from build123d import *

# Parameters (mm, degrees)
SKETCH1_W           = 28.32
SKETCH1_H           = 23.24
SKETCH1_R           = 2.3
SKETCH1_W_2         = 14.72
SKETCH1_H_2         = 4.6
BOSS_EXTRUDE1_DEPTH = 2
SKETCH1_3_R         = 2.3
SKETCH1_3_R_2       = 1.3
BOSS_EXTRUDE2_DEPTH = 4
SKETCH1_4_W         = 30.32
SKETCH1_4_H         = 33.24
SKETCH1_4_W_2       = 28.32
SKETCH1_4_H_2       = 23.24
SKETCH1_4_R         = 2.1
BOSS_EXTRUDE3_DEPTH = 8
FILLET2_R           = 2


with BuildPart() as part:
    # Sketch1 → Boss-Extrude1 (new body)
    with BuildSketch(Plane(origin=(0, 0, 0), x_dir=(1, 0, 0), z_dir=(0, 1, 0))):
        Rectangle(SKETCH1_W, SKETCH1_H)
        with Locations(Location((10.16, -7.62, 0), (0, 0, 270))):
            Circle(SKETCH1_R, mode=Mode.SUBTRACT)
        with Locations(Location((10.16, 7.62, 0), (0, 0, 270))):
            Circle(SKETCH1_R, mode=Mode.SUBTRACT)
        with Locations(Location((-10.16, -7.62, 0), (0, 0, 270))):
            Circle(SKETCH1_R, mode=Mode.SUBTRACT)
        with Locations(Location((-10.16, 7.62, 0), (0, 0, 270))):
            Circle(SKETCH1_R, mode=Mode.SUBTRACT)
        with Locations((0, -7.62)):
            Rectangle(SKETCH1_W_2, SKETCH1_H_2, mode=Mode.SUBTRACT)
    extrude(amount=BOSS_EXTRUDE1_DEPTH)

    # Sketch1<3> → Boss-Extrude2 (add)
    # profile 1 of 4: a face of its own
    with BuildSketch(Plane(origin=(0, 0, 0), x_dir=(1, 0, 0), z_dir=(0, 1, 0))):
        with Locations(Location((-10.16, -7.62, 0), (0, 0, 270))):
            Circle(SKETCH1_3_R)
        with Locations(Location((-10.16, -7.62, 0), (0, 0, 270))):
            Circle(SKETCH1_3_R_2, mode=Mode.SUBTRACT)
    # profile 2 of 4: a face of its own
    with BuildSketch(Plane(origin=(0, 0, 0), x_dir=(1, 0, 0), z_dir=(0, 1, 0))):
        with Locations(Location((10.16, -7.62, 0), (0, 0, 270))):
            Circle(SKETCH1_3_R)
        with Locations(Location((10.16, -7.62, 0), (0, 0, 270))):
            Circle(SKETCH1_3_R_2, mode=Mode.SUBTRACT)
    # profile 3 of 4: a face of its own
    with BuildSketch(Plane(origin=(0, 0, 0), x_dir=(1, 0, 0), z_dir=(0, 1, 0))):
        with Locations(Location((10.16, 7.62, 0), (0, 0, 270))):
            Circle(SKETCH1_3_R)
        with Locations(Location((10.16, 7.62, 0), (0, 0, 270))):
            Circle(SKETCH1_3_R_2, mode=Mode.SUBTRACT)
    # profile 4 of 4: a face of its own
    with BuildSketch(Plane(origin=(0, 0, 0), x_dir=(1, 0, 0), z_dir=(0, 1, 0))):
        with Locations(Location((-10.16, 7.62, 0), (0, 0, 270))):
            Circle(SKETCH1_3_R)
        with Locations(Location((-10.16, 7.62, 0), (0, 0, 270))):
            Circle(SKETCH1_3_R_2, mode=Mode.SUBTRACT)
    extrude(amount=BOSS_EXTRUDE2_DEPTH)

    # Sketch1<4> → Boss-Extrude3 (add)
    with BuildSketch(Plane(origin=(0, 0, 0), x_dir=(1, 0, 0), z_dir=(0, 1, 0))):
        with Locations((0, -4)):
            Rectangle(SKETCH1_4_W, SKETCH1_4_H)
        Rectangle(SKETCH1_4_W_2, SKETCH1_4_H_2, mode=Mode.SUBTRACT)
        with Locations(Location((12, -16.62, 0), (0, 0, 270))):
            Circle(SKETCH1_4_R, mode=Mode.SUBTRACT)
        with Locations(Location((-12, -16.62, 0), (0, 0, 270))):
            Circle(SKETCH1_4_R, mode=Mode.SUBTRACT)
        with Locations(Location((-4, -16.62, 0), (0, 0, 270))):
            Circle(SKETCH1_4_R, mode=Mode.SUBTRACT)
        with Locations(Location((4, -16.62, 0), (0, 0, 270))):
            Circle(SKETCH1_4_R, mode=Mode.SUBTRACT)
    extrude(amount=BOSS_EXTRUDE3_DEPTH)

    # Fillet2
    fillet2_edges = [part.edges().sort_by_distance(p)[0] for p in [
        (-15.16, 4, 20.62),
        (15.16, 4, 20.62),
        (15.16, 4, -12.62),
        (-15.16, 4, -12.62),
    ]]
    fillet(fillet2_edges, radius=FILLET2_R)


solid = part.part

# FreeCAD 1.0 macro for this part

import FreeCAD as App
import Part
import Sketcher
from FreeCAD import Vector


def edges_at(feature, points):
    """Names of the edges that pass closest to the given points."""
    edges = feature.Shape.Edges
    near = lambda p: min(range(len(edges)), key=lambda i: edges[i].distToShape(Part.Vertex(*p))[0])
    return sorted({f"Edge{near(p) + 1}" for p in points})


def add_polygon(sketch, points):
    """Adds a closed chain of lines whose ends are joined by coincident constraints."""
    first, n = sketch.GeometryCount, len(points)
    for a, b in zip(points, points[1:] + points[:1]):
        sketch.addGeometry(Part.LineSegment(App.Vector(*a, 0), App.Vector(*b, 0)), False)
    for i in range(n):
        sketch.addConstraint(Sketcher.Constraint("Coincident", first + i, 2, first + (i + 1) % n, 1))

doc = App.newDocument("Part")
body = doc.addObject("PartDesign::Body", "Body")

# Sketch on XZ plane
sketch1 = body.newObject("Sketcher::SketchObject", "Sketch")
sketch1.AttachmentSupport = (doc.getObject("XZ_Plane"), [""])
sketch1.MapMode = "FlatFace"
add_polygon(sketch1, [(-14.2, -11.6), (-14.2, 11.6), (14.2, 11.6), (14.2, -11.6)])  # lines 0-3
sketch1.addGeometry(Part.Circle(Vector(-10.2, 7.6, 0), Vector(0, 0, 1), 2.3), False)  # 4
add_polygon(sketch1, [(7.4, 9.9), (-7.4, 9.9), (-7.4, 5.3), (7.4, 5.3)])  # lines 5-8
sketch1.addGeometry(Part.Circle(Vector(10.2, 7.6, 0), Vector(0, 0, 1), 2.3), False)  # 9
sketch1.addGeometry(Part.Circle(Vector(-10.2, -7.6, 0), Vector(0, 0, 1), 2.3), False)  # 10
sketch1.addGeometry(Part.Circle(Vector(10.2, -7.6, 0), Vector(0, 0, 1), 2.3), False)  # 11
sketch1.addConstraint([
    Sketcher.Constraint("Vertical", 0),
    Sketcher.Constraint("Horizontal", 1),
    Sketcher.Constraint("Vertical", 2),
    Sketcher.Constraint("Horizontal", 3),
    Sketcher.Constraint("Horizontal", 5),
    Sketcher.Constraint("Vertical", 6),
    Sketcher.Constraint("Horizontal", 7),
    Sketcher.Constraint("Vertical", 8),
    Sketcher.Constraint("Equal", 4, 9),
    Sketcher.Constraint("Equal", 9, 10),
    Sketcher.Constraint("Equal", 10, 11),
    Sketcher.Constraint("Symmetric", 9, 3, 10, 3, -1, 1),
    Sketcher.Constraint("Symmetric", 4, 3, 11, 3, -1, 1),
    Sketcher.Constraint("Symmetric", 0, 2, 2, 2, -1, 1),
    Sketcher.Constraint("Symmetric", 4, 3, 9, 3, -2),
    Sketcher.Constraint("Diameter", 4, 4.6),
    Sketcher.Constraint("DistanceY", 6, 2, 6, 1, 4.6),
    Sketcher.Constraint("DistanceX", 0, 2, 4, 3, 4.0),
    Sketcher.Constraint("DistanceY", 4, 3, 0, 2, 4.0),
    Sketcher.Constraint("DistanceX", 1, 1, 1, 2, 28.32),
    Sketcher.Constraint("DistanceX", 5, 2, 5, 1, 14.72),
    Sketcher.Constraint("DistanceY", 0, 1, 0, 2, 23.24),
    Sketcher.Constraint("DistanceX", 4, 3, 5, 2, 2.8),
    Sketcher.Constraint("DistanceY", 4, 3, 5, 2, 2.3),
])
pad1 = body.newObject("PartDesign::Pad", "Pad")
pad1.Profile = sketch1
pad1.Length = 2
pad1.Reversed = True

# Sketch on XZ plane
sketch2 = body.newObject("Sketcher::SketchObject", "Sketch001")
sketch2.AttachmentSupport = (doc.getObject("XZ_Plane"), [""])
sketch2.MapMode = "FlatFace"
sketch2.addGeometry([
    Part.Circle(Vector(-10.2, 7.6, 0), Vector(0, 0, 1), 2.3),  # 0
    Part.Circle(Vector(-10.2, 7.6, 0), Vector(0, 0, 1), 1.3),  # 1
    Part.Circle(Vector(10.2, 7.6, 0), Vector(0, 0, 1), 2.3),  # 2
    Part.Circle(Vector(10.2, 7.6, 0), Vector(0, 0, 1), 1.3),  # 3
    Part.Circle(Vector(10.2, -7.6, 0), Vector(0, 0, 1), 2.3),  # 4
    Part.Circle(Vector(10.2, -7.6, 0), Vector(0, 0, 1), 1.3),  # 5
    Part.Circle(Vector(-10.2, -7.6, 0), Vector(0, 0, 1), 2.3),  # 6
    Part.Circle(Vector(-10.2, -7.6, 0), Vector(0, 0, 1), 1.3),  # 7
], False)
sketch2.addConstraint([
    Sketcher.Constraint("Coincident", 1, 3, 0, 3),
    Sketcher.Constraint("Coincident", 3, 3, 2, 3),
    Sketcher.Constraint("Coincident", 5, 3, 4, 3),
    Sketcher.Constraint("Coincident", 7, 3, 6, 3),
    Sketcher.Constraint("Equal", 0, 2),
    Sketcher.Constraint("Equal", 1, 3),
    Sketcher.Constraint("Equal", 2, 4),
    Sketcher.Constraint("Equal", 3, 5),
    Sketcher.Constraint("Equal", 4, 6),
    Sketcher.Constraint("Equal", 5, 7),
    Sketcher.Constraint("Symmetric", 0, 3, 4, 3, -1, 1),
    Sketcher.Constraint("Symmetric", 2, 3, 6, 3, -1, 1),
    Sketcher.Constraint("Symmetric", 0, 3, 2, 3, -2),
    Sketcher.Constraint("Diameter", 0, 4.6),
    Sketcher.Constraint("Diameter", 1, 2.6),
    Sketcher.Constraint("DistanceX", 0, 3, -1, 1, 10.16),
    Sketcher.Constraint("DistanceY", -1, 1, 0, 3, 7.62),
])
pad2 = body.newObject("PartDesign::Pad", "Pad001")
pad2.Profile = sketch2
pad2.Length = 4
pad2.Reversed = True

# Sketch on XZ plane
sketch3 = body.newObject("Sketcher::SketchObject", "Sketch002")
sketch3.AttachmentSupport = (doc.getObject("XZ_Plane"), [""])
sketch3.MapMode = "FlatFace"
add_polygon(sketch3, [(-15.2, -12.6), (-15.2, 20.6), (15.2, 20.6), (15.2, -12.6)])  # lines 0-3
sketch3.addGeometry(Part.Circle(Vector(-12, 16.6, 0), Vector(0, 0, 1), 2.1), False)  # 4
sketch3.addGeometry(Part.Circle(Vector(-4, 16.6, 0), Vector(0, 0, 1), 2.1), False)  # 5
sketch3.addGeometry(Part.Circle(Vector(4, 16.6, 0), Vector(0, 0, 1), 2.1), False)  # 6
sketch3.addGeometry(Part.Circle(Vector(12, 16.6, 0), Vector(0, 0, 1), 2.1), False)  # 7
add_polygon(sketch3, [(14.2, 11.6), (-14.2, 11.6), (-14.2, -11.6), (14.2, -11.6)])  # lines 8-11
sketch3.addConstraint([
    Sketcher.Constraint("Vertical", 0),
    Sketcher.Constraint("Horizontal", 1),
    Sketcher.Constraint("Vertical", 2),
    Sketcher.Constraint("Horizontal", 3),
    Sketcher.Constraint("Horizontal", 8),
    Sketcher.Constraint("Vertical", 9),
    Sketcher.Constraint("Horizontal", 10),
    Sketcher.Constraint("Vertical", 11),
    Sketcher.Constraint("Equal", 4, 5),
    Sketcher.Constraint("Equal", 5, 6),
    Sketcher.Constraint("Equal", 6, 7),
    Sketcher.Constraint("Symmetric", 8, 2, 10, 2, -1, 1),
    Sketcher.Constraint("Symmetric", 5, 3, 6, 3, -2),
    Sketcher.Constraint("Symmetric", 4, 3, 7, 3, -2),
    Sketcher.Constraint("Horizontal", 4, 3, 5, 3),
    Sketcher.Constraint("Diameter", 4, 4.2),
    Sketcher.Constraint("DistanceX", 4, 3, -1, 1, 12.0),
    Sketcher.Constraint("DistanceX", 5, 3, -1, 1, 4.0),
    Sketcher.Constraint("DistanceY", 4, 3, 0, 2, 4.0),
    Sketcher.Constraint("DistanceY", 8, 2, 4, 3, 5.0),
    Sketcher.Constraint("DistanceX", 0, 2, 8, 2, 1.0),
    Sketcher.Constraint("DistanceY", 3, 2, 9, 2, 1.0),
    Sketcher.Constraint("DistanceX", 10, 2, 2, 2, 1.0),
    Sketcher.Constraint("DistanceX", 1, 1, 1, 2, 30.32),
    Sketcher.Constraint("DistanceY", 0, 1, 0, 2, 33.24),
])
pad3 = body.newObject("PartDesign::Pad", "Pad002")
pad3.Profile = sketch3
pad3.Length = 8
pad3.Reversed = True
doc.recompute()

fillet = body.newObject("PartDesign::Fillet", "Fillet")
fillet.Base = (pad3, edges_at(pad3, [
    (-15.16, 4, 20.62),
    (15.16, 4, 20.62),
    (15.16, 4, -12.62),
    (-15.16, 4, -12.62),
]))
fillet.Radius = 2

doc.recompute()
